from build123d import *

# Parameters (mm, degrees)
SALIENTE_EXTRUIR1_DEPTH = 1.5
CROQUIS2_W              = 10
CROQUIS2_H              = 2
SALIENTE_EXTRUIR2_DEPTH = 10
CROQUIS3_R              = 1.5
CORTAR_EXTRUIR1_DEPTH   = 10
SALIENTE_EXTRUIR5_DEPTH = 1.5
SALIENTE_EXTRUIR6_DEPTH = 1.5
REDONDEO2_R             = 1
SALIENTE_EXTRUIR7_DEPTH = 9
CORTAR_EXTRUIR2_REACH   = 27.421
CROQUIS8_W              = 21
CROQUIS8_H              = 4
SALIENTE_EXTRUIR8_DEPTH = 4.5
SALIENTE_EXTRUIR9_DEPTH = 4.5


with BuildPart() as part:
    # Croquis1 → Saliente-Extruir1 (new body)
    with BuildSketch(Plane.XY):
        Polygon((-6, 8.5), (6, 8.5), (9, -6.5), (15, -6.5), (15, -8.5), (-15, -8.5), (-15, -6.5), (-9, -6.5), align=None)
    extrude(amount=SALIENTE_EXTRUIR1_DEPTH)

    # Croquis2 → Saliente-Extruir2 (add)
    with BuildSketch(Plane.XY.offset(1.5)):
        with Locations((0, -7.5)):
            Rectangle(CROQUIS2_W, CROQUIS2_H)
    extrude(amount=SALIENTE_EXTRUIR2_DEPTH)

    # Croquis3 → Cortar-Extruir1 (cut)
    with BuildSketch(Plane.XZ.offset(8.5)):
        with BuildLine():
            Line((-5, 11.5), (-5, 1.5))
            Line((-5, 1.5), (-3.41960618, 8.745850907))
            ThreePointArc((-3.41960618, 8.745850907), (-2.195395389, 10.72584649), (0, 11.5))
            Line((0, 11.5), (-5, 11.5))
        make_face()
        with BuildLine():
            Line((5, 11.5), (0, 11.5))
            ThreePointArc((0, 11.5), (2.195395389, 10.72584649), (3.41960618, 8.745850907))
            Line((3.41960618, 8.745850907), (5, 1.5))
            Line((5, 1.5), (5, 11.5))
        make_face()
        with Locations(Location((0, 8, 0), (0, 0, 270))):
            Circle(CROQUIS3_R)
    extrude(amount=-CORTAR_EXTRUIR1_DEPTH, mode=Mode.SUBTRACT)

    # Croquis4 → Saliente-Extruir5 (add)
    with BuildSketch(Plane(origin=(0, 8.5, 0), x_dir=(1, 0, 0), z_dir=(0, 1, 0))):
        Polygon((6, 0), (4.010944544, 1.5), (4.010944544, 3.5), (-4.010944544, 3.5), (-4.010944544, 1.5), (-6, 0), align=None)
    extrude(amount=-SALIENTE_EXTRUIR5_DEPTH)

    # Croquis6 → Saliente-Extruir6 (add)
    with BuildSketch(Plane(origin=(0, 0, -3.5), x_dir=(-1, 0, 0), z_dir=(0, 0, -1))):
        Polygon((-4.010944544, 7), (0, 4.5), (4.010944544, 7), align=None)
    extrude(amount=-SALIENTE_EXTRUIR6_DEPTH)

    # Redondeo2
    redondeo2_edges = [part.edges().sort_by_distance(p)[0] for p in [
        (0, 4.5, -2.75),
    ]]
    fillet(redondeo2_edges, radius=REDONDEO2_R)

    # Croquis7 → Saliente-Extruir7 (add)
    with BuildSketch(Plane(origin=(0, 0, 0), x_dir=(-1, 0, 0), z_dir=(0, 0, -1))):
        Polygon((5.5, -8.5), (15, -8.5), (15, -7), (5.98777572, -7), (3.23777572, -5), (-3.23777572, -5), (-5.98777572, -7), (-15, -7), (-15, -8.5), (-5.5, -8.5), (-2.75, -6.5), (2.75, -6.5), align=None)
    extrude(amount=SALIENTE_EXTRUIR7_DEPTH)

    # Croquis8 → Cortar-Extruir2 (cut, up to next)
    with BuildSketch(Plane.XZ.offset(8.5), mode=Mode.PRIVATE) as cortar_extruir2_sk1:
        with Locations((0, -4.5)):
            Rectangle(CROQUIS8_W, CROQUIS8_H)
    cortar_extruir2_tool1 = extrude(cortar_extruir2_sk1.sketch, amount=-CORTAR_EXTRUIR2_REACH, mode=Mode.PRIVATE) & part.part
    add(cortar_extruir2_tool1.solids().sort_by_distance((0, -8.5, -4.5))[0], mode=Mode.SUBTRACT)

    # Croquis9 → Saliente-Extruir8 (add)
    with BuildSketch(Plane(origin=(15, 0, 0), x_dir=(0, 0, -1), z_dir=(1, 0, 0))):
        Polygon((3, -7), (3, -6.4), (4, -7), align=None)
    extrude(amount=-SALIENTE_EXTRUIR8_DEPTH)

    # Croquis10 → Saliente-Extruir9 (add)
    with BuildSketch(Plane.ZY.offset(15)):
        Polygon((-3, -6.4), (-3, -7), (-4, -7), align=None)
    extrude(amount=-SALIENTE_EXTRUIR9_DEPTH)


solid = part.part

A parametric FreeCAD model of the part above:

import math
import FreeCAD as App
import Part
import Sketcher
from FreeCAD import Vector
Q = App.Units.Quantity


def edges_at(feature, points):
    """Names of the edges that pass closest to the given points."""
    edges = feature.Shape.Edges
    near = lambda p: min(range(len(edges)), key=lambda i: edges[i].distToShape(Part.Vertex(*p))[0])
    return sorted({f"Edge{near(p) + 1}" for p in points})

doc = App.newDocument("Part")
params = doc.addObject("Spreadsheet::Sheet", "Params")
for row, (alias, value) in enumerate([
    ("sketch1_width", "12 mm"),
    ("sketch1_width2", "6 mm"),
    ("sketch1_width3", "30 mm"),
    ("sketch1_height", "2 mm"),
    ("pad1_length", "1.5 mm"),
    ("sketch2_width", "10 mm"),
    ("sketch2_height", "2 mm"),
    ("pad2_length", "10 mm"),
    ("sketch3_diameter", "3 mm"),
    ("sketch3_radius", "3.5 mm"),
    ("sketch3_width", "5 mm"),
    ("sketch3_height", "10 mm"),
    ("pocket1_length", "10 mm"),
    ("sketch4_width", "12 mm"),
    ("sketch4_height", "2 mm"),
    ("pad3_length", "1.5 mm"),
    ("pad4_length", "1.5 mm"),
    ("fillet_radius", "1 mm"),
    ("sketch6_width", "9.5 mm"),
    ("sketch6_width2", "5.5 mm"),
    ("sketch6_height", "1.5 mm"),
    ("pad5_length", "9 mm"),
    ("sketch7_width", "21 mm"),
    ("sketch7_height", "4 mm"),
    ("pocket2_length", "3.5 mm"),
    ("sketch8_height", "1 mm"),
    ("sketch8_width", "0.6 mm"),
    ("pad6_length", "4.5 mm"),
    ("sketch9_height", "1 mm"),
    ("sketch9_width", "0.6 mm"),
    ("pad7_length", "4.5 mm"),
], start=1):
    params.set(f"A{row}", alias)
    params.set(f"B{row}", "=" + value)
    params.setAlias(f"B{row}", alias)

body = doc.addObject("PartDesign::Body", "Body")

sketch1 = body.newObject("Sketcher::SketchObject", "Sketch")
sketch1.AttachmentSupport = (doc.getObject("XY_Plane"), [""])
sketch1.MapMode = "FlatFace"
sketch1.addGeometry([
    Part.LineSegment(Vector(6, 8.5, 0), Vector(-6, 8.5, 0)),
    Part.LineSegment(Vector(-6, 8.5, 0), Vector(-9, -6.5, 0)),
    Part.LineSegment(Vector(-9, -6.5, 0), Vector(-15, -6.5, 0)),
    Part.LineSegment(Vector(-15, -6.5, 0), Vector(-15, -8.5, 0)),
    Part.LineSegment(Vector(-15, -8.5, 0), Vector(15, -8.5, 0)),
    Part.LineSegment(Vector(15, -8.5, 0), Vector(15, -6.5, 0)),
    Part.LineSegment(Vector(15, -6.5, 0), Vector(9, -6.5, 0)),
    Part.LineSegment(Vector(9, -6.5, 0), Vector(6, 8.5, 0)),
], False)
sketch1.addConstraint([
    Sketcher.Constraint("Coincident", 0, 2, 1, 1),
    Sketcher.Constraint("Coincident", 1, 2, 2, 1),
    Sketcher.Constraint("Coincident", 2, 2, 3, 1),
    Sketcher.Constraint("Coincident", 3, 2, 4, 1),
    Sketcher.Constraint("Coincident", 4, 2, 5, 1),
    Sketcher.Constraint("Coincident", 5, 2, 6, 1),
    Sketcher.Constraint("Coincident", 6, 2, 7, 1),
    Sketcher.Constraint("Coincident", 7, 2, 0, 1),
    Sketcher.Constraint("Horizontal", 0),
    Sketcher.Constraint("Horizontal", 2),
    Sketcher.Constraint("Vertical", 3),
    Sketcher.Constraint("Horizontal", 4),
    Sketcher.Constraint("Vertical", 5),
    Sketcher.Constraint("Horizontal", 6),
    Sketcher.Constraint("Symmetric", 2, 2, 5, 2, -2),
    Sketcher.Constraint("Equal", 2, 6),
    Sketcher.Constraint("Equal", 1, 7),
    Sketcher.Constraint("DistanceX", 0, 2, 0, 1, Q("12 mm")),
    Sketcher.Constraint("DistanceX", 2, 2, 2, 1, Q("6 mm")),
    Sketcher.Constraint("DistanceX", 4, 1, 4, 2, Q("30 mm")),
    Sketcher.Constraint("DistanceY", 3, 2, 3, 1, Q("2 mm")),
    Sketcher.Constraint("DistanceY", 1, 2, 0, 2, Q("15 mm")),
    Sketcher.Constraint("DistanceY", -1, 1, 0, 2, Q("8.5 mm")),
])
sketch1.setExpression("Constraints[17]", "Params.sketch1_width")
sketch1.setExpression("Constraints[18]", "Params.sketch1_width2")
sketch1.setExpression("Constraints[19]", "Params.sketch1_width3")
sketch1.setExpression("Constraints[20]", "Params.sketch1_height")
pad1 = body.newObject("PartDesign::Pad", "Pad")
pad1.Profile = sketch1
pad1.setExpression("Length", "Params.pad1_length")

sketch2 = body.newObject("Sketcher::SketchObject", "Sketch001")
sketch2.AttachmentSupport = (doc.getObject("XY_Plane"), [""])
sketch2.MapMode = "FlatFace"
sketch2.AttachmentOffset = App.Placement(Vector(0, 0, 1.5), App.Rotation())
sketch2.addGeometry([
    Part.LineSegment(Vector(-5, -6.5, 0), Vector(-5, -8.5, 0)),
    Part.LineSegment(Vector(-5, -8.5, 0), Vector(5, -8.5, 0)),
    Part.LineSegment(Vector(5, -8.5, 0), Vector(5, -6.5, 0)),
    Part.LineSegment(Vector(5, -6.5, 0), Vector(-5, -6.5, 0)),
], False)
sketch2.addConstraint([
    Sketcher.Constraint("Coincident", 0, 2, 1, 1),
    Sketcher.Constraint("Coincident", 1, 2, 2, 1),
    Sketcher.Constraint("Coincident", 2, 2, 3, 1),
    Sketcher.Constraint("Coincident", 3, 2, 0, 1),
    Sketcher.Constraint("Vertical", 0),
    Sketcher.Constraint("Horizontal", 1),
    Sketcher.Constraint("Vertical", 2),
    Sketcher.Constraint("Horizontal", 3),
    Sketcher.Constraint("DistanceX", 1, 1, 1, 2, Q("10 mm")),
    Sketcher.Constraint("DistanceY", 0, 2, 0, 1, Q("2 mm")),
    Sketcher.Constraint("DistanceX", 0, 2, -1, 1, Q("5 mm")),
    Sketcher.Constraint("DistanceY", 0, 2, -1, 1, Q("8.5 mm")),
])
sketch2.setExpression("Constraints[8]", "Params.sketch2_width")
sketch2.setExpression("Constraints[9]", "Params.sketch2_height")
pad2 = body.newObject("PartDesign::Pad", "Pad001")
pad2.Profile = sketch2
pad2.setExpression("Length", "Params.pad2_length")

sketch3 = body.newObject("Sketcher::SketchObject", "Sketch002")
sketch3.AttachmentSupport = (doc.getObject("XZ_Plane"), [""])
sketch3.MapMode = "FlatFace"
sketch3.AttachmentOffset = App.Placement(Vector(0, 0, 8.5), App.Rotation())
sketch3.addGeometry([
    Part.LineSegment(Vector(-5, 11.5, 0), Vector(-5, 1.5, 0)),
    Part.LineSegment(Vector(-5, 1.5, 0), Vector(-3.419606, 8.745851, 0)),
    Part.ArcOfCircle(Part.Circle(Vector(0, 8, 0), Vector(0, 0, 1), 3.5), math.radians(90), math.radians(167.695902)),
    Part.LineSegment(Vector(0, 11.5, 0), Vector(-5, 11.5, 0)),
    Part.LineSegment(Vector(5, 11.5, 0), Vector(0, 11.5, 0)),
    Part.ArcOfCircle(Part.Circle(Vector(0, 8, 0), Vector(0, 0, 1), 3.5), math.radians(12.304098), math.radians(90)),
    Part.LineSegment(Vector(3.419606, 8.745851, 0), Vector(5, 1.5, 0)),
    Part.LineSegment(Vector(5, 1.5, 0), Vector(5, 11.5, 0)),
    Part.Circle(Vector(0, 8, 0), Vector(0, 0, 1), 1.5),
], False)
sketch3.addConstraint([
    Sketcher.Constraint("Coincident", 0, 2, 1, 1),
    Sketcher.Constraint("Tangent", 1, 2, 2, 2),
    Sketcher.Constraint("Tangent", 2, 1, 3, 1),
    Sketcher.Constraint("Coincident", 3, 2, 0, 1),
    Sketcher.Constraint("Tangent", 4, 2, 5, 2),
    Sketcher.Constraint("Tangent", 5, 1, 6, 1),
    Sketcher.Constraint("Coincident", 6, 2, 7, 1),
    Sketcher.Constraint("Coincident", 7, 2, 4, 1),
    Sketcher.Constraint("Vertical", 0),
    Sketcher.Constraint("Horizontal", 3),
    Sketcher.Constraint("Horizontal", 4),
    Sketcher.Constraint("Vertical", 7),
    Sketcher.Constraint("Coincident", 5, 3, 2, 3),
    Sketcher.Constraint("Coincident", 8, 3, 2, 3),
    Sketcher.Constraint("Equal", 2, 5),
    Sketcher.Constraint("Symmetric", 1, 2, 5, 1, -2),
    Sketcher.Constraint("Horizontal", 0, 2, 6, 2),
    Sketcher.Constraint("Diameter", 8, Q("3 mm")),
    Sketcher.Constraint("Radius", 2, Q("3.5 mm")),
    Sketcher.Constraint("DistanceX", 3, 2, 3, 1, Q("5 mm")),
    Sketcher.Constraint("DistanceY", 0, 2, 0, 1, Q("10 mm")),
    Sketcher.Constraint("DistanceY", -1, 1, 2, 3, Q("8 mm")),
])
sketch3.setExpression("Constraints[17]", "Params.sketch3_diameter")
sketch3.setExpression("Constraints[18]", "Params.sketch3_radius")
sketch3.setExpression("Constraints[19]", "Params.sketch3_width")
sketch3.setExpression("Constraints[20]", "Params.sketch3_height")
pocket1 = body.newObject("PartDesign::Pocket", "Pocket")
pocket1.Profile = sketch3
pocket1.setExpression("Length", "Params.pocket1_length")

sketch4 = body.newObject("Sketcher::SketchObject", "Sketch003")
sketch4.AttachmentSupport = (doc.getObject("XZ_Plane"), [""])
sketch4.MapMode = "FlatFace"
sketch4.AttachmentOffset = App.Placement(Vector(0, 0, -8.5), App.Rotation())
sketch4.addGeometry([
    Part.LineSegment(Vector(6, 0, 0), Vector(4.010945, -1.5, 0)),
    Part.LineSegment(Vector(4.010945, -1.5, 0), Vector(4.010945, -3.5, 0)),
    Part.LineSegment(Vector(4.010945, -3.5, 0), Vector(-4.010945, -3.5, 0)),
    Part.LineSegment(Vector(-4.010945, -3.5, 0), Vector(-4.010945, -1.5, 0)),
    Part.LineSegment(Vector(-4.010945, -1.5, 0), Vector(-6, 0, 0)),
    Part.LineSegment(Vector(-6, 0, 0), Vector(6, 0, 0)),
], False)
sketch4.addConstraint([
    Sketcher.Constraint("Coincident", 0, 2, 1, 1),
    Sketcher.Constraint("Coincident", 1, 2, 2, 1),
    Sketcher.Constraint("Coincident", 2, 2, 3, 1),
    Sketcher.Constraint("Coincident", 3, 2, 4, 1),
    Sketcher.Constraint("Coincident", 4, 2, 5, 1),
    Sketcher.Constraint("Coincident", 5, 2, 0, 1),
    Sketcher.Constraint("Vertical", 1),
    Sketcher.Constraint("Horizontal", 2),
    Sketcher.Constraint("Vertical", 3),
    Sketcher.Constraint("Horizontal", 5),
    Sketcher.Constraint("Symmetric", 4, 2, 5, 2, -1, 1),
    Sketcher.Constraint("Symmetric", 0, 2, 3, 2, -2),
    Sketcher.Constraint("DistanceX", 5, 1, 5, 2, Q("12 mm")),
    Sketcher.Constraint("DistanceY", 1, 2, 1, 1, Q("2 mm")),
    Sketcher.Constraint("DistanceY", 0, 2, -1, 1, Q("1.5 mm")),
    Sketcher.Constraint("DistanceX", 2, 2, 2, 1, Q("8.021889 mm")),
])
sketch4.setExpression("Constraints[12]", "Params.sketch4_width")
sketch4.setExpression("Constraints[13]", "Params.sketch4_height")
pad3 = body.newObject("PartDesign::Pad", "Pad002")
pad3.Profile = sketch4
pad3.setExpression("Length", "Params.pad3_length")

sketch5 = body.newObject("Sketcher::SketchObject", "Sketch004")
sketch5.AttachmentSupport = (doc.getObject("XY_Plane"), [""])
sketch5.MapMode = "FlatFace"
sketch5.AttachmentOffset = App.Placement(Vector(0, 0, -3.5), App.Rotation())
sketch5.addGeometry([
    Part.LineSegment(Vector(4.010945, 7, 0), Vector(0, 4.5, 0)),
    Part.LineSegment(Vector(0, 4.5, 0), Vector(-4.010945, 7, 0)),
    Part.LineSegment(Vector(-4.010945, 7, 0), Vector(4.010945, 7, 0)),
], False)
sketch5.addConstraint([
    Sketcher.Constraint("Coincident", 0, 2, 1, 1),
    Sketcher.Constraint("Coincident", 1, 2, 2, 1),
    Sketcher.Constraint("Coincident", 2, 2, 0, 1),
    Sketcher.Constraint("Horizontal", 2),
    Sketcher.Constraint("PointOnObject", 0, 2, -2),
    Sketcher.Constraint("Equal", 0, 1),
    Sketcher.Constraint("DistanceY", -1, 1, 1, 2, Q("7 mm")),
    Sketcher.Constraint("DistanceY", -1, 1, 0, 2, Q("4.5 mm")),
    Sketcher.Constraint("DistanceX", 2, 1, 2, 2, Q("8.021889 mm")),
])
pad4 = body.newObject("PartDesign::Pad", "Pad003")
pad4.Profile = sketch5
pad4.setExpression("Length", "Params.pad4_length")
doc.recompute()

fillet = body.newObject("PartDesign::Fillet", "Fillet")
fillet.Base = (pad4, edges_at(pad4, [(0, 4.5, -2.75)]))
fillet.setExpression("Radius", "Params.fillet_radius")

sketch6 = body.newObject("Sketcher::SketchObject", "Sketch005")
sketch6.AttachmentSupport = (doc.getObject("XY_Plane"), [""])
sketch6.MapMode = "FlatFace"
sketch6.addGeometry([
    Part.LineSegment(Vector(-5.5, -8.5, 0), Vector(-15, -8.5, 0)),
    Part.LineSegment(Vector(-15, -8.5, 0), Vector(-15, -7, 0)),
    Part.LineSegment(Vector(-15, -7, 0), Vector(-5.987776, -7, 0)),
    Part.LineSegment(Vector(-5.987776, -7, 0), Vector(-3.237776, -5, 0)),
    Part.LineSegment(Vector(-3.237776, -5, 0), Vector(3.237776, -5, 0)),
    Part.LineSegment(Vector(3.237776, -5, 0), Vector(5.987776, -7, 0)),
    Part.LineSegment(Vector(5.987776, -7, 0), Vector(15, -7, 0)),
    Part.LineSegment(Vector(15, -7, 0), Vector(15, -8.5, 0)),
    Part.LineSegment(Vector(15, -8.5, 0), Vector(5.5, -8.5, 0)),
    Part.LineSegment(Vector(5.5, -8.5, 0), Vector(2.75, -6.5, 0)),
    Part.LineSegment(Vector(2.75, -6.5, 0), Vector(-2.75, -6.5, 0)),
    Part.LineSegment(Vector(-2.75, -6.5, 0), Vector(-5.5, -8.5, 0)),
], False)
sketch6.addConstraint([
    Sketcher.Constraint("Coincident", 0, 2, 1, 1),
    Sketcher.Constraint("Coincident", 1, 2, 2, 1),
    Sketcher.Constraint("Coincident", 2, 2, 3, 1),
    Sketcher.Constraint("Coincident", 3, 2, 4, 1),
    Sketcher.Constraint("Coincident", 4, 2, 5, 1),
    Sketcher.Constraint("Coincident", 5, 2, 6, 1),
    Sketcher.Constraint("Coincident", 6, 2, 7, 1),
    Sketcher.Constraint("Coincident", 7, 2, 8, 1),
    Sketcher.Constraint("Coincident", 8, 2, 9, 1),
    Sketcher.Constraint("Coincident", 9, 2, 10, 1),
    Sketcher.Constraint("Coincident", 10, 2, 11, 1),
    Sketcher.Constraint("Coincident", 11, 2, 0, 1),
    Sketcher.Constraint("Horizontal", 0),
    Sketcher.Constraint("Vertical", 1),
    Sketcher.Constraint("Horizontal", 2),
    Sketcher.Constraint("Horizontal", 4),
    Sketcher.Constraint("Horizontal", 6),
    Sketcher.Constraint("Vertical", 7),
    Sketcher.Constraint("Horizontal", 8),
    Sketcher.Constraint("Horizontal", 10),
    Sketcher.Constraint("Symmetric", 2, 2, 5, 2, -2),
    Sketcher.Constraint("Symmetric", 0, 2, 7, 2, -2),
    Sketcher.Constraint("Parallel", 5, 9),
    Sketcher.Constraint("Parallel", 3, 11),
    Sketcher.Constraint("Equal", 0, 8),
    Sketcher.Constraint("Equal", 3, 5),
    Sketcher.Constraint("Equal", 5, 9),
    Sketcher.Constraint("DistanceX", 0, 2, 0, 1, Q("9.5 mm")),
    Sketcher.Constraint("DistanceX", 10, 2, 10, 1, Q("5.5 mm")),
    Sketcher.Constraint("DistanceY", 1, 1, 1, 2, Q("1.5 mm")),
    Sketcher.Constraint("DistanceX", 0, 2, -1, 1, Q("15 mm")),
    Sketcher.Constraint("DistanceY", 1, 2, -1, 1, Q("7 mm")),
    Sketcher.Constraint("DistanceY", 3, 2, -1, 1, Q("5 mm")),
    Sketcher.Constraint("DistanceX", 4, 1, 4, 2, Q("6.475551 mm")),
])
sketch6.setExpression("Constraints[27]", "Params.sketch6_width")
sketch6.setExpression("Constraints[28]", "Params.sketch6_width2")
sketch6.setExpression("Constraints[29]", "Params.sketch6_height")
pad5 = body.newObject("PartDesign::Pad", "Pad004")
pad5.Profile = sketch6
pad5.setExpression("Length", "Params.pad5_length")
pad5.Reversed = True

sketch7 = body.newObject("Sketcher::SketchObject", "Sketch006")
sketch7.AttachmentSupport = (doc.getObject("XZ_Plane"), [""])
sketch7.MapMode = "FlatFace"
sketch7.AttachmentOffset = App.Placement(Vector(0, 0, 8.5), App.Rotation())
sketch7.addGeometry([
    Part.LineSegment(Vector(-10.5, -2.5, 0), Vector(-10.5, -6.5, 0)),
    Part.LineSegment(Vector(-10.5, -6.5, 0), Vector(10.5, -6.5, 0)),
    Part.LineSegment(Vector(10.5, -6.5, 0), Vector(10.5, -2.5, 0)),
    Part.LineSegment(Vector(10.5, -2.5, 0), Vector(-10.5, -2.5, 0)),
], False)
sketch7.addConstraint([
    Sketcher.Constraint("Coincident", 0, 2, 1, 1),
    Sketcher.Constraint("Coincident", 1, 2, 2, 1),
    Sketcher.Constraint("Coincident", 2, 2, 3, 1),
    Sketcher.Constraint("Coincident", 3, 2, 0, 1),
    Sketcher.Constraint("Vertical", 0),
    Sketcher.Constraint("Horizontal", 1),
    Sketcher.Constraint("Vertical", 2),
    Sketcher.Constraint("Horizontal", 3),
    Sketcher.Constraint("DistanceX", 1, 1, 1, 2, Q("21 mm")),
    Sketcher.Constraint("DistanceY", 0, 2, 0, 1, Q("4 mm")),
    Sketcher.Constraint("DistanceX", 0, 2, -1, 1, Q("10.5 mm")),
    Sketcher.Constraint("DistanceY", 0, 2, -1, 1, Q("6.5 mm")),
])
sketch7.setExpression("Constraints[8]", "Params.sketch7_width")
sketch7.setExpression("Constraints[9]", "Params.sketch7_height")
pocket2 = body.newObject("PartDesign::Pocket", "Pocket001")
pocket2.Profile = sketch7
pocket2.setExpression("Length", "Params.pocket2_length")

sketch8 = body.newObject("Sketcher::SketchObject", "Sketch007")
sketch8.AttachmentSupport = (doc.getObject("YZ_Plane"), [""])
sketch8.MapMode = "FlatFace"
sketch8.AttachmentOffset = App.Placement(Vector(0, 0, 15), App.Rotation())
sketch8.addGeometry([
    Part.LineSegment(Vector(-6.4, -3, 0), Vector(-7, -3, 0)),
    Part.LineSegment(Vector(-7, -3, 0), Vector(-7, -4, 0)),
    Part.LineSegment(Vector(-7, -4, 0), Vector(-6.4, -3, 0)),
], False)
sketch8.addConstraint([
    Sketcher.Constraint("Coincident", 0, 2, 1, 1),
    Sketcher.Constraint("Coincident", 1, 2, 2, 1),
    Sketcher.Constraint("Coincident", 2, 2, 0, 1),
    Sketcher.Constraint("Horizontal", 0),
    Sketcher.Constraint("Vertical", 1),
    Sketcher.Constraint("DistanceY", 1, 2, 1, 1, Q("1 mm")),
    Sketcher.Constraint("DistanceX", 0, 2, 0, 1, Q("0.6 mm")),
    Sketcher.Constraint("DistanceX", 0, 2, -1, 1, Q("7 mm")),
    Sketcher.Constraint("DistanceY", 0, 2, -1, 1, Q("3 mm")),
])
sketch8.setExpression("Constraints[5]", "Params.sketch8_height")
sketch8.setExpression("Constraints[6]", "Params.sketch8_width")
pad6 = body.newObject("PartDesign::Pad", "Pad005")
pad6.Profile = sketch8
pad6.setExpression("Length", "Params.pad6_length")
pad6.Reversed = True

sketch9 = body.newObject("Sketcher::SketchObject", "Sketch008")
sketch9.AttachmentSupport = (doc.getObject("YZ_Plane"), [""])
sketch9.MapMode = "FlatFace"
sketch9.AttachmentOffset = App.Placement(Vector(0, 0, -15), App.Rotation())
sketch9.addGeometry([
    Part.LineSegment(Vector(-7, -3, 0), Vector(-6.4, -3, 0)),
    Part.LineSegment(Vector(-6.4, -3, 0), Vector(-7, -4, 0)),
    Part.LineSegment(Vector(-7, -4, 0), Vector(-7, -3, 0)),
], False)
sketch9.addConstraint([
    Sketcher.Constraint("Coincident", 0, 2, 1, 1),
    Sketcher.Constraint("Coincident", 1, 2, 2, 1),
    Sketcher.Constraint("Coincident", 2, 2, 0, 1),
    Sketcher.Constraint("Horizontal", 0),
    Sketcher.Constraint("Vertical", 2),
    Sketcher.Constraint("DistanceY", 2, 1, 2, 2, Q("1 mm")),
    Sketcher.Constraint("DistanceX", 0, 1, 0, 2, Q("0.6 mm")),
    Sketcher.Constraint("DistanceY", 0, 2, -1, 1, Q("3 mm")),
    Sketcher.Constraint("DistanceX", 1, 2, -1, 1, Q("7 mm")),
])
sketch9.setExpression("Constraints[5]", "Params.sketch9_height")
sketch9.setExpression("Constraints[6]", "Params.sketch9_width")
pad7 = body.newObject("PartDesign::Pad", "Pad006")
pad7.Profile = sketch9
pad7.setExpression("Length", "Params.pad7_length")

doc.recompute()
